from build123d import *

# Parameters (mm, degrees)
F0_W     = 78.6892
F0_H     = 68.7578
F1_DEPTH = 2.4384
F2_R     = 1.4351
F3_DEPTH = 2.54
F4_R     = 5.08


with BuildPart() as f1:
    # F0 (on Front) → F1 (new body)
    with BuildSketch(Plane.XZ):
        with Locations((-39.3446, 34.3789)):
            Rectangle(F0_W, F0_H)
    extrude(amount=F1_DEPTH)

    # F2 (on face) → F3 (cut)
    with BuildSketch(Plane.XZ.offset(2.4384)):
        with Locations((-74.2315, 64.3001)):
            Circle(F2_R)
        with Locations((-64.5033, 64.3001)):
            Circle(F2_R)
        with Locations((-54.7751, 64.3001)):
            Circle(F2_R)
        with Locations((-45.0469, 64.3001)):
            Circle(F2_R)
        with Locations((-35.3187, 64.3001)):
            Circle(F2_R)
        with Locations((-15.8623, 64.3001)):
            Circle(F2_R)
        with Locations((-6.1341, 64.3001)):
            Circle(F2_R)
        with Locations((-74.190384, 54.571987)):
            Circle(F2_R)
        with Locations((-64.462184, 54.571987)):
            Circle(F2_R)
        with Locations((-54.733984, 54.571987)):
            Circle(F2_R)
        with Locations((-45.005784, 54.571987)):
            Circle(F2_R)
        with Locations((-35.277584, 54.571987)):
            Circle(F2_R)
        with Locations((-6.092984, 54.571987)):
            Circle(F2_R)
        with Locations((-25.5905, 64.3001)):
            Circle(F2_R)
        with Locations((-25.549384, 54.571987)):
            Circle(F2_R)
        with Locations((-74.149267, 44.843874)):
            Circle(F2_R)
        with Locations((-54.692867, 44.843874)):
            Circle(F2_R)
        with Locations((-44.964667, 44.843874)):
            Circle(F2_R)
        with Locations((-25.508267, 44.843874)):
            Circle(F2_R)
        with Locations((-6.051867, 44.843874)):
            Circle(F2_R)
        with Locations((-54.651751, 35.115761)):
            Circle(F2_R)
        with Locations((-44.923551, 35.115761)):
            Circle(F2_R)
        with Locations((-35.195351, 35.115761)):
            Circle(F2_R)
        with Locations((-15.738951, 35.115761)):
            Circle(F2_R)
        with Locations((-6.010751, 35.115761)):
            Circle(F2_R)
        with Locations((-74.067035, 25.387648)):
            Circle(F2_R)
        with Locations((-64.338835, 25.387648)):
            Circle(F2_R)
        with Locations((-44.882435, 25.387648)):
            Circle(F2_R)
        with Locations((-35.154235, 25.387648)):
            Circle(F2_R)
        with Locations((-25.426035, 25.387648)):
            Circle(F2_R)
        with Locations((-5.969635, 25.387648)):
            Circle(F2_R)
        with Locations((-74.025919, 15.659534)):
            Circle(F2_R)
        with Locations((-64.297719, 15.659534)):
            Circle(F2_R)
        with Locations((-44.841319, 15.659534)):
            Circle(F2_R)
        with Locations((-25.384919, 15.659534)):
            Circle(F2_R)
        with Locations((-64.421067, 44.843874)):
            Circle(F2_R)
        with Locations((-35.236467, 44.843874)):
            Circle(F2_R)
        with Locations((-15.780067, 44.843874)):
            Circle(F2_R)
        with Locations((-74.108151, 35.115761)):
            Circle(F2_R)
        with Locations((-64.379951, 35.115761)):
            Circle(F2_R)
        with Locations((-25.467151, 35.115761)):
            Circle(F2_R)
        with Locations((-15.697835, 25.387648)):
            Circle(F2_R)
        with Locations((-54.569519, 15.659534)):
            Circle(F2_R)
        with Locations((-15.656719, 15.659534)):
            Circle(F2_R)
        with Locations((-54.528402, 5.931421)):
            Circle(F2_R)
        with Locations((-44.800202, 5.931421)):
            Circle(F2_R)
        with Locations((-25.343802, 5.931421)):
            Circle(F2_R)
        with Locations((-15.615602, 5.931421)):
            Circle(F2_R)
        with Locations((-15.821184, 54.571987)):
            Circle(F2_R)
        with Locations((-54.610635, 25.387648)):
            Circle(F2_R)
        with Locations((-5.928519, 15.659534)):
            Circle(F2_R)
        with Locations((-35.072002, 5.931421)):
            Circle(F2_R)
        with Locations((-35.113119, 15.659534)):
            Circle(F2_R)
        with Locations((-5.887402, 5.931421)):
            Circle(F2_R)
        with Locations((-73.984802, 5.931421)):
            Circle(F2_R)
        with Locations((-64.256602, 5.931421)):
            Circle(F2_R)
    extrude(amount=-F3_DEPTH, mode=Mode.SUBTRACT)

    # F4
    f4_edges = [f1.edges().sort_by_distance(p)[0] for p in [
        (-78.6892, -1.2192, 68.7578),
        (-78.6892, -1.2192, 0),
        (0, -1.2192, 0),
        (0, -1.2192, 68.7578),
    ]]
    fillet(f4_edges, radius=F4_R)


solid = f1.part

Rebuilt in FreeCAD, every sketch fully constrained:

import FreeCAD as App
import Part
import Sketcher

V = App.Vector
Q = App.Units.Quantity


def edges_at(feature, points):
    """Names of the edges that pass closest to the given points."""
    edges = feature.Shape.Edges
    near = lambda p: min(range(len(edges)), key=lambda i: edges[i].distToShape(Part.Vertex(*p))[0])
    return sorted({f"Edge{near(p) + 1}" for p in points})

doc = App.newDocument("Part")
params = doc.addObject("Spreadsheet::Sheet", "Params")
for row, (alias, value) in enumerate([
    ("sketch1_width", "3.098 in"),
    ("sketch1_height", "2.707 in"),
    ("pad1_length", "0.096 in"),
    ("sketch2_diameter", "0.113 in"),
    ("pocket1_length", "0.1 in"),
    ("fillet_radius", "0.2 in"),
], start=1):
    params.set(f"A{row}", alias)
    params.set(f"B{row}", "=" + value)
    params.setAlias(f"B{row}", alias)

body = doc.addObject("PartDesign::Body", "Body")

# Sketch on XZ plane
sketch1 = body.newObject("Sketcher::SketchObject", "Sketch")
sketch1.AttachmentSupport = (doc.getObject("XZ_Plane"), [""])
sketch1.MapMode = "FlatFace"
sketch1.addGeometry(Part.LineSegment(V(-78.6892, 68.7578, 0), V(-78.6892, 0, 0)), False)
sketch1.addGeometry(Part.LineSegment(V(-78.6892, 0, 0), V(0, 0, 0)), False)
sketch1.addGeometry(Part.LineSegment(V(0, 0, 0), V(0, 68.7578, 0)), False)
sketch1.addGeometry(Part.LineSegment(V(0, 68.7578, 0), V(-78.6892, 68.7578, 0)), False)
sketch1.addConstraint(Sketcher.Constraint("Coincident", 0, 2, 1, 1))
sketch1.addConstraint(Sketcher.Constraint("Coincident", 1, 2, 2, 1))
sketch1.addConstraint(Sketcher.Constraint("Coincident", 2, 2, 3, 1))
sketch1.addConstraint(Sketcher.Constraint("Coincident", 3, 2, 0, 1))
sketch1.addConstraint(Sketcher.Constraint("Vertical", 0))
sketch1.addConstraint(Sketcher.Constraint("Horizontal", 1))
sketch1.addConstraint(Sketcher.Constraint("Vertical", 2))
sketch1.addConstraint(Sketcher.Constraint("Horizontal", 3))
sketch1.addConstraint(Sketcher.Constraint("Coincident", 1, 2, -1, 1))
sketch1.addConstraint(Sketcher.Constraint("DistanceX", 1, 1, 1, 2, Q("3.098 in")))
sketch1.addConstraint(Sketcher.Constraint("DistanceY", 0, 2, 0, 1, Q("2.707 in")))
sketch1.setExpression("Constraints[9]", "Params.sketch1_width")
sketch1.setExpression("Constraints[10]", "Params.sketch1_height")
pad1 = body.newObject("PartDesign::Pad", "Pad")
pad1.Profile = sketch1
pad1.setExpression("Length", "Params.pad1_length")

# Sketch on XZ plane
sketch2 = body.newObject("Sketcher::SketchObject", "Sketch001")
sketch2.AttachmentSupport = (doc.getObject("XZ_Plane"), [""])
sketch2.MapMode = "FlatFace"
sketch2.AttachmentOffset = App.Placement(V(0, 0, 0.096 * 25.4), App.Rotation())
sketch2.addGeometry(Part.Circle(V(-74.2315, 64.3001, 0), V(0, 0, 1), 1.4351), False)
sketch2.addGeometry(Part.Circle(V(-64.5033, 64.3001, 0), V(0, 0, 1), 1.4351), False)
sketch2.addGeometry(Part.Circle(V(-54.7751, 64.3001, 0), V(0, 0, 1), 1.4351), False)
sketch2.addGeometry(Part.Circle(V(-45.0469, 64.3001, 0), V(0, 0, 1), 1.4351), False)
sketch2.addGeometry(Part.Circle(V(-35.3187, 64.3001, 0), V(0, 0, 1), 1.4351), False)
sketch2.addGeometry(Part.Circle(V(-15.8623, 64.3001, 0), V(0, 0, 1), 1.4351), False)
sketch2.addGeometry(Part.Circle(V(-6.1341, 64.3001, 0), V(0, 0, 1), 1.4351), False)
sketch2.addGeometry(Part.Circle(V(-74.190384, 54.571987, 0), V(0, 0, 1), 1.4351), False)
sketch2.addGeometry(Part.Circle(V(-64.462184, 54.571987, 0), V(0, 0, 1), 1.4351), False)
sketch2.addGeometry(Part.Circle(V(-54.733984, 54.571987, 0), V(0, 0, 1), 1.4351), False)
sketch2.addGeometry(Part.Circle(V(-45.005784, 54.571987, 0), V(0, 0, 1), 1.4351), False)
sketch2.addGeometry(Part.Circle(V(-35.277584, 54.571987, 0), V(0, 0, 1), 1.4351), False)
sketch2.addGeometry(Part.Circle(V(-6.092984, 54.571987, 0), V(0, 0, 1), 1.4351), False)
sketch2.addGeometry(Part.Circle(V(-25.5905, 64.3001, 0), V(0, 0, 1), 1.4351), False)
sketch2.addGeometry(Part.Circle(V(-25.549384, 54.571987, 0), V(0, 0, 1), 1.4351), False)
sketch2.addGeometry(Part.Circle(V(-74.149267, 44.843874, 0), V(0, 0, 1), 1.4351), False)
sketch2.addGeometry(Part.Circle(V(-54.692867, 44.843874, 0), V(0, 0, 1), 1.4351), False)
sketch2.addGeometry(Part.Circle(V(-44.964667, 44.843874, 0), V(0, 0, 1), 1.4351), False)
sketch2.addGeometry(Part.Circle(V(-25.508267, 44.843874, 0), V(0, 0, 1), 1.4351), False)
sketch2.addGeometry(Part.Circle(V(-6.051867, 44.843874, 0), V(0, 0, 1), 1.4351), False)
sketch2.addGeometry(Part.Circle(V(-54.651751, 35.115761, 0), V(0, 0, 1), 1.4351), False)
sketch2.addGeometry(Part.Circle(V(-44.923551, 35.115761, 0), V(0, 0, 1), 1.4351), False)
sketch2.addGeometry(Part.Circle(V(-35.195351, 35.115761, 0), V(0, 0, 1), 1.4351), False)
sketch2.addGeometry(Part.Circle(V(-15.738951, 35.115761, 0), V(0, 0, 1), 1.4351), False)
sketch2.addGeometry(Part.Circle(V(-6.010751, 35.115761, 0), V(0, 0, 1), 1.4351), False)
sketch2.addGeometry(Part.Circle(V(-74.067035, 25.387648, 0), V(0, 0, 1), 1.4351), False)
sketch2.addGeometry(Part.Circle(V(-64.338835, 25.387648, 0), V(0, 0, 1), 1.4351), False)
sketch2.addGeometry(Part.Circle(V(-44.882435, 25.387648, 0), V(0, 0, 1), 1.4351), False)
sketch2.addGeometry(Part.Circle(V(-35.154235, 25.387648, 0), V(0, 0, 1), 1.4351), False)
sketch2.addGeometry(Part.Circle(V(-25.426035, 25.387648, 0), V(0, 0, 1), 1.4351), False)
sketch2.addGeometry(Part.Circle(V(-5.969635, 25.387648, 0), V(0, 0, 1), 1.4351), False)
sketch2.addGeometry(Part.Circle(V(-74.025919, 15.659534, 0), V(0, 0, 1), 1.4351), False)
sketch2.addGeometry(Part.Circle(V(-64.297719, 15.659534, 0), V(0, 0, 1), 1.4351), False)
sketch2.addGeometry(Part.Circle(V(-44.841319, 15.659534, 0), V(0, 0, 1), 1.4351), False)
sketch2.addGeometry(Part.Circle(V(-25.384919, 15.659534, 0), V(0, 0, 1), 1.4351), False)
sketch2.addGeometry(Part.Circle(V(-64.421067, 44.843874, 0), V(0, 0, 1), 1.4351), False)
sketch2.addGeometry(Part.Circle(V(-35.236467, 44.843874, 0), V(0, 0, 1), 1.4351), False)
sketch2.addGeometry(Part.Circle(V(-15.780067, 44.843874, 0), V(0, 0, 1), 1.4351), False)
sketch2.addGeometry(Part.Circle(V(-74.108151, 35.115761, 0), V(0, 0, 1), 1.4351), False)
sketch2.addGeometry(Part.Circle(V(-64.379951, 35.115761, 0), V(0, 0, 1), 1.4351), False)
sketch2.addGeometry(Part.Circle(V(-25.467151, 35.115761, 0), V(0, 0, 1), 1.4351), False)
sketch2.addGeometry(Part.Circle(V(-15.697835, 25.387648, 0), V(0, 0, 1), 1.4351), False)
sketch2.addGeometry(Part.Circle(V(-54.569519, 15.659534, 0), V(0, 0, 1), 1.4351), False)
sketch2.addGeometry(Part.Circle(V(-15.656719, 15.659534, 0), V(0, 0, 1), 1.4351), False)
sketch2.addGeometry(Part.Circle(V(-54.528402, 5.931421, 0), V(0, 0, 1), 1.4351), False)
sketch2.addGeometry(Part.Circle(V(-44.800202, 5.931421, 0), V(0, 0, 1), 1.4351), False)
sketch2.addGeometry(Part.Circle(V(-25.343802, 5.931421, 0), V(0, 0, 1), 1.4351), False)
sketch2.addGeometry(Part.Circle(V(-15.615602, 5.931421, 0), V(0, 0, 1), 1.4351), False)
sketch2.addGeometry(Part.Circle(V(-15.821184, 54.571987, 0), V(0, 0, 1), 1.4351), False)
sketch2.addGeometry(Part.Circle(V(-54.610635, 25.387648, 0), V(0, 0, 1), 1.4351), False)
sketch2.addGeometry(Part.Circle(V(-5.928519, 15.659534, 0), V(0, 0, 1), 1.4351), False)
sketch2.addGeometry(Part.Circle(V(-35.072002, 5.931421, 0), V(0, 0, 1), 1.4351), False)
sketch2.addGeometry(Part.Circle(V(-35.113119, 15.659534, 0), V(0, 0, 1), 1.4351), False)
sketch2.addGeometry(Part.Circle(V(-5.887402, 5.931421, 0), V(0, 0, 1), 1.4351), False)
sketch2.addGeometry(Part.Circle(V(-73.984802, 5.931421, 0), V(0, 0, 1), 1.4351), False)
sketch2.addGeometry(Part.Circle(V(-64.256602, 5.931421, 0), V(0, 0, 1), 1.4351), False)
sketch2.addConstraint(Sketcher.Constraint("Equal", 0, 1))
sketch2.addConstraint(Sketcher.Constraint("Equal", 1, 2))
sketch2.addConstraint(Sketcher.Constraint("Equal", 2, 3))
sketch2.addConstraint(Sketcher.Constraint("Equal", 3, 4))
sketch2.addConstraint(Sketcher.Constraint("Equal", 4, 5))
sketch2.addConstraint(Sketcher.Constraint("Equal", 5, 6))
sketch2.addConstraint(Sketcher.Constraint("Equal", 6, 7))
sketch2.addConstraint(Sketcher.Constraint("Equal", 7, 8))
sketch2.addConstraint(Sketcher.Constraint("Equal", 8, 9))
sketch2.addConstraint(Sketcher.Constraint("Equal", 9, 10))
sketch2.addConstraint(Sketcher.Constraint("Equal", 10, 11))
sketch2.addConstraint(Sketcher.Constraint("Equal", 11, 12))
sketch2.addConstraint(Sketcher.Constraint("Equal", 12, 13))
sketch2.addConstraint(Sketcher.Constraint("Equal", 13, 14))
sketch2.addConstraint(Sketcher.Constraint("Equal", 14, 15))
sketch2.addConstraint(Sketcher.Constraint("Equal", 15, 16))
sketch2.addConstraint(Sketcher.Constraint("Equal", 16, 17))
sketch2.addConstraint(Sketcher.Constraint("Equal", 17, 18))
sketch2.addConstraint(Sketcher.Constraint("Equal", 18, 19))
sketch2.addConstraint(Sketcher.Constraint("Equal", 19, 20))
sketch2.addConstraint(Sketcher.Constraint("Equal", 20, 21))
sketch2.addConstraint(Sketcher.Constraint("Equal", 21, 22))
sketch2.addConstraint(Sketcher.Constraint("Equal", 22, 23))
sketch2.addConstraint(Sketcher.Constraint("Equal", 23, 24))
sketch2.addConstraint(Sketcher.Constraint("Equal", 24, 25))
sketch2.addConstraint(Sketcher.Constraint("Equal", 25, 26))
sketch2.addConstraint(Sketcher.Constraint("Equal", 26, 27))
sketch2.addConstraint(Sketcher.Constraint("Equal", 27, 28))
sketch2.addConstraint(Sketcher.Constraint("Equal", 28, 29))
sketch2.addConstraint(Sketcher.Constraint("Equal", 29, 30))
sketch2.addConstraint(Sketcher.Constraint("Equal", 30, 31))
sketch2.addConstraint(Sketcher.Constraint("Equal", 31, 32))
sketch2.addConstraint(Sketcher.Constraint("Equal", 32, 33))
sketch2.addConstraint(Sketcher.Constraint("Equal", 33, 34))
sketch2.addConstraint(Sketcher.Constraint("Equal", 34, 35))
sketch2.addConstraint(Sketcher.Constraint("Equal", 35, 36))
sketch2.addConstraint(Sketcher.Constraint("Equal", 36, 37))
sketch2.addConstraint(Sketcher.Constraint("Equal", 37, 38))
sketch2.addConstraint(Sketcher.Constraint("Equal", 38, 39))
sketch2.addConstraint(Sketcher.Constraint("Equal", 39, 40))
sketch2.addConstraint(Sketcher.Constraint("Equal", 40, 41))
sketch2.addConstraint(Sketcher.Constraint("Equal", 41, 42))
sketch2.addConstraint(Sketcher.Constraint("Equal", 42, 43))
sketch2.addConstraint(Sketcher.Constraint("Equal", 43, 44))
sketch2.addConstraint(Sketcher.Constraint("Equal", 44, 45))
sketch2.addConstraint(Sketcher.Constraint("Equal", 45, 46))
sketch2.addConstraint(Sketcher.Constraint("Equal", 46, 47))
sketch2.addConstraint(Sketcher.Constraint("Equal", 47, 48))
sketch2.addConstraint(Sketcher.Constraint("Equal", 48, 49))
sketch2.addConstraint(Sketcher.Constraint("Equal", 49, 50))
sketch2.addConstraint(Sketcher.Constraint("Equal", 50, 51))
sketch2.addConstraint(Sketcher.Constraint("Equal", 51, 52))
sketch2.addConstraint(Sketcher.Constraint("Equal", 52, 53))
sketch2.addConstraint(Sketcher.Constraint("Equal", 53, 54))
sketch2.addConstraint(Sketcher.Constraint("Equal", 54, 55))
sketch2.addConstraint(Sketcher.Constraint("Horizontal", 0, 3, 1, 3))
sketch2.addConstraint(Sketcher.Constraint("Horizontal", 1, 3, 2, 3))
sketch2.addConstraint(Sketcher.Constraint("Horizontal", 2, 3, 3, 3))
sketch2.addConstraint(Sketcher.Constraint("Horizontal", 3, 3, 4, 3))
sketch2.addConstraint(Sketcher.Constraint("Horizontal", 4, 3, 5, 3))
sketch2.addConstraint(Sketcher.Constraint("Horizontal", 5, 3, 6, 3))
sketch2.addConstraint(Sketcher.Constraint("Horizontal", 7, 3, 8, 3))
sketch2.addConstraint(Sketcher.Constraint("Horizontal", 8, 3, 9, 3))
sketch2.addConstraint(Sketcher.Constraint("Horizontal", 9, 3, 10, 3))
sketch2.addConstraint(Sketcher.Constraint("Horizontal", 10, 3, 11, 3))
sketch2.addConstraint(Sketcher.Constraint("Horizontal", 11, 3, 12, 3))
sketch2.addConstraint(Sketcher.Constraint("Horizontal", 6, 3, 13, 3))
sketch2.addConstraint(Sketcher.Constraint("Horizontal", 12, 3, 14, 3))
sketch2.addConstraint(Sketcher.Constraint("Horizontal", 15, 3, 16, 3))
sketch2.addConstraint(Sketcher.Constraint("Horizontal", 16, 3, 17, 3))
sketch2.addConstraint(Sketcher.Constraint("Horizontal", 17, 3, 18, 3))
sketch2.addConstraint(Sketcher.Constraint("Horizontal", 18, 3, 19, 3))
sketch2.addConstraint(Sketcher.Constraint("Horizontal", 20, 3, 21, 3))
sketch2.addConstraint(Sketcher.Constraint("Horizontal", 21, 3, 22, 3))
sketch2.addConstraint(Sketcher.Constraint("Horizontal", 22, 3, 23, 3))
sketch2.addConstraint(Sketcher.Constraint("Horizontal", 23, 3, 24, 3))
sketch2.addConstraint(Sketcher.Constraint("Horizontal", 25, 3, 26, 3))
sketch2.addConstraint(Sketcher.Constraint("Horizontal", 26, 3, 27, 3))
sketch2.addConstraint(Sketcher.Constraint("Horizontal", 27, 3, 28, 3))
sketch2.addConstraint(Sketcher.Constraint("Horizontal", 28, 3, 29, 3))
sketch2.addConstraint(Sketcher.Constraint("Horizontal", 29, 3, 30, 3))
sketch2.addConstraint(Sketcher.Constraint("Horizontal", 31, 3, 32, 3))
sketch2.addConstraint(Sketcher.Constraint("Horizontal", 32, 3, 33, 3))
sketch2.addConstraint(Sketcher.Constraint("Horizontal", 33, 3, 34, 3))
sketch2.addConstraint(Sketcher.Constraint("Horizontal", 19, 3, 35, 3))
sketch2.addConstraint(Sketcher.Constraint("Horizontal", 35, 3, 36, 3))
sketch2.addConstraint(Sketcher.Constraint("Horizontal", 36, 3, 37, 3))
sketch2.addConstraint(Sketcher.Constraint("Horizontal", 24, 3, 38, 3))
sketch2.addConstraint(Sketcher.Constraint("Horizontal", 38, 3, 39, 3))
sketch2.addConstraint(Sketcher.Constraint("Horizontal", 39, 3, 40, 3))
sketch2.addConstraint(Sketcher.Constraint("Horizontal", 30, 3, 41, 3))
sketch2.addConstraint(Sketcher.Constraint("Horizontal", 34, 3, 42, 3))
sketch2.addConstraint(Sketcher.Constraint("Horizontal", 42, 3, 43, 3))
sketch2.addConstraint(Sketcher.Constraint("Horizontal", 44, 3, 45, 3))
sketch2.addConstraint(Sketcher.Constraint("Horizontal", 45, 3, 46, 3))
sketch2.addConstraint(Sketcher.Constraint("Horizontal", 46, 3, 47, 3))
sketch2.addConstraint(Sketcher.Constraint("Horizontal", 14, 3, 48, 3))
sketch2.addConstraint(Sketcher.Constraint("Horizontal", 41, 3, 49, 3))
sketch2.addConstraint(Sketcher.Constraint("Horizontal", 43, 3, 50, 3))
sketch2.addConstraint(Sketcher.Constraint("Horizontal", 47, 3, 51, 3))
sketch2.addConstraint(Sketcher.Constraint("Horizontal", 50, 3, 52, 3))
sketch2.addConstraint(Sketcher.Constraint("Horizontal", 51, 3, 53, 3))
sketch2.addConstraint(Sketcher.Constraint("Horizontal", 53, 3, 54, 3))
sketch2.addConstraint(Sketcher.Constraint("Horizontal", 54, 3, 55, 3))
sketch2.addConstraint(Sketcher.Constraint("Diameter", 0, Q("0.113 in")))
sketch2.addConstraint(Sketcher.Constraint("DistanceX", 0, 3, 1, 3, Q("0.383 in")))
sketch2.addConstraint(Sketcher.Constraint("DistanceX", 1, 3, 2, 3, Q("0.383 in")))
sketch2.addConstraint(Sketcher.Constraint("DistanceX", 2, 3, 3, 3, Q("0.383 in")))
sketch2.addConstraint(Sketcher.Constraint("DistanceX", 3, 3, 4, 3, Q("0.383 in")))
sketch2.addConstraint(Sketcher.Constraint("DistanceX", 4, 3, 5, 3, Q("0.766 in")))
sketch2.addConstraint(Sketcher.Constraint("DistanceX", 5, 3, 6, 3, Q("0.383 in")))
sketch2.addConstraint(Sketcher.Constraint("DistanceX", 7, 3, 8, 3, Q("0.383 in")))
sketch2.addConstraint(Sketcher.Constraint("DistanceX", 8, 3, 9, 3, Q("0.383 in")))
sketch2.addConstraint(Sketcher.Constraint("DistanceX", 9, 3, 10, 3, Q("0.383 in")))
sketch2.addConstraint(Sketcher.Constraint("DistanceX", 10, 3, 11, 3, Q("0.383 in")))
sketch2.addConstraint(Sketcher.Constraint("DistanceX", 11, 3, 12, 3, Q("1.149 in")))
sketch2.addConstraint(Sketcher.Constraint("DistanceX", 13, 3, 5, 3, Q("0.383 in")))
sketch2.addConstraint(Sketcher.Constraint("DistanceX", 11, 3, 14, 3, Q("0.383 in")))
sketch2.addConstraint(Sketcher.Constraint("DistanceX", 15, 3, 16, 3, Q("0.766 in")))
sketch2.addConstraint(Sketcher.Constraint("DistanceX", 16, 3, 17, 3, Q("0.383 in")))
sketch2.addConstraint(Sketcher.Constraint("DistanceX", 17, 3, 18, 3, Q("0.766 in")))
sketch2.addConstraint(Sketcher.Constraint("DistanceX", 18, 3, 19, 3, Q("0.766 in")))
sketch2.addConstraint(Sketcher.Constraint("DistanceX", 20, 3, 21, 3, Q("0.383 in")))
sketch2.addConstraint(Sketcher.Constraint("DistanceX", 21, 3, 22, 3, Q("0.383 in")))
sketch2.addConstraint(Sketcher.Constraint("DistanceX", 22, 3, 23, 3, Q("0.766 in")))
sketch2.addConstraint(Sketcher.Constraint("DistanceX", 23, 3, 24, 3, Q("0.383 in")))
sketch2.addConstraint(Sketcher.Constraint("DistanceX", 25, 3, 26, 3, Q("0.383 in")))
sketch2.addConstraint(Sketcher.Constraint("DistanceX", 26, 3, 27, 3, Q("0.766 in")))
sketch2.addConstraint(Sketcher.Constraint("DistanceX", 27, 3, 28, 3, Q("0.383 in")))
sketch2.addConstraint(Sketcher.Constraint("DistanceX", 28, 3, 29, 3, Q("0.383 in")))
sketch2.addConstraint(Sketcher.Constraint("DistanceX", 29, 3, 30, 3, Q("0.766 in")))
sketch2.addConstraint(Sketcher.Constraint("DistanceX", 31, 3, 32, 3, Q("0.383 in")))
sketch2.addConstraint(Sketcher.Constraint("DistanceX", 32, 3, 33, 3, Q("0.766 in")))
sketch2.addConstraint(Sketcher.Constraint("DistanceX", 33, 3, 34, 3, Q("0.766 in")))
sketch2.addConstraint(Sketcher.Constraint("DistanceX", 35, 3, 16, 3, Q("0.383 in")))
sketch2.addConstraint(Sketcher.Constraint("DistanceX", 36, 3, 18, 3, Q("0.383 in")))
sketch2.addConstraint(Sketcher.Constraint("DistanceX", 18, 3, 37, 3, Q("0.383 in")))
sketch2.addConstraint(Sketcher.Constraint("DistanceX", 38, 3, 39, 3, Q("0.383 in")))
sketch2.addConstraint(Sketcher.Constraint("DistanceX", 39, 3, 20, 3, Q("0.383 in")))
sketch2.addConstraint(Sketcher.Constraint("DistanceX", 22, 3, 40, 3, Q("0.383 in")))
sketch2.addConstraint(Sketcher.Constraint("DistanceX", 29, 3, 41, 3, Q("0.383 in")))
sketch2.addConstraint(Sketcher.Constraint("DistanceX", 32, 3, 42, 3, Q("0.383 in")))
sketch2.addConstraint(Sketcher.Constraint("DistanceX", 34, 3, 43, 3, Q("0.383 in")))
sketch2.addConstraint(Sketcher.Constraint("DistanceX", 44, 3, 45, 3, Q("0.383 in")))
sketch2.addConstraint(Sketcher.Constraint("DistanceX", 45, 3, 46, 3, Q("0.766 in")))
sketch2.addConstraint(Sketcher.Constraint("DistanceX", 46, 3, 47, 3, Q("0.383 in")))
sketch2.addConstraint(Sketcher.Constraint("DistanceX", 14, 3, 48, 3, Q("0.383 in")))
sketch2.addConstraint(Sketcher.Constraint("DistanceX", 26, 3, 49, 3, Q("0.383 in")))
sketch2.addConstraint(Sketcher.Constraint("DistanceX", 43, 3, 50, 3, Q("0.383 in")))
sketch2.addConstraint(Sketcher.Constraint("DistanceX", 51, 3, 46, 3, Q("0.383 in")))
sketch2.addConstraint(Sketcher.Constraint("DistanceX", 52, 3, 34, 3, Q("0.383 in")))
sketch2.addConstraint(Sketcher.Constraint("DistanceX", 47, 3, 53, 3, Q("0.383 in")))
sketch2.addConstraint(Sketcher.Constraint("DistanceX", 54, 3, 44, 3, Q("0.766 in")))
sketch2.addConstraint(Sketcher.Constraint("DistanceX", 55, 3, 44, 3, Q("0.383 in")))
sketch2.addConstraint(Sketcher.Constraint("DistanceX", 0, 3, -1, 1, Q("2.9225 in")))
sketch2.addConstraint(Sketcher.Constraint("DistanceY", -1, 1, 0, 3, Q("2.5315 in")))
sketch2.addConstraint(Sketcher.Constraint("DistanceX", 46, 3, -1, 1, 25.343802))
sketch2.addConstraint(Sketcher.Constraint("DistanceX", 20, 3, -1, 1, 54.651751))
sketch2.addConstraint(Sketcher.Constraint("DistanceY", -1, 1, 20, 3, 35.115761))
sketch2.addConstraint(Sketcher.Constraint("DistanceX", 31, 3, -1, 1, 74.025919))
sketch2.addConstraint(Sketcher.Constraint("DistanceY", -1, 1, 44, 3, 5.931421))
sketch2.addConstraint(Sketcher.Constraint("DistanceX", 15, 3, 25, 3, 0.082232))
sketch2.addConstraint(Sketcher.Constraint("DistanceX", 7, 3, 25, 3, 0.123349))
sketch2.addConstraint(Sketcher.Constraint("DistanceY", 25, 3, 7, 3, 29.184339))
sketch2.addConstraint(Sketcher.Constraint("DistanceY", 31, 3, 15, 3, 29.18434))
sketch2.addConstraint(Sketcher.Constraint("DistanceX", 7, 3, -1, 1, 74.190384))
sketch2.addConstraint(Sketcher.Constraint("DistanceY", -1, 1, 7, 3, 54.571987))
sketch2.addConstraint(Sketcher.Constraint("DistanceY", -1, 1, 15, 3, 44.843874))
sketch2.setExpression("Constraints[104]", "Params.sketch2_diameter")
pocket1 = body.newObject("PartDesign::Pocket", "Pocket")
pocket1.Profile = sketch2
pocket1.setExpression("Length", "Params.pocket1_length")
doc.recompute()

fillet = body.newObject("PartDesign::Fillet", "Fillet")
fillet.Base = (pocket1, edges_at(pocket1, [
    (-78.689, -1.219, 68.758),
    (-78.689, -1.219, 0),
    (0, -1.219, 0),
    (0, -1.219, 68.758),
]))
fillet.setExpression("Radius", "Params.fillet_radius")

doc.recompute()
